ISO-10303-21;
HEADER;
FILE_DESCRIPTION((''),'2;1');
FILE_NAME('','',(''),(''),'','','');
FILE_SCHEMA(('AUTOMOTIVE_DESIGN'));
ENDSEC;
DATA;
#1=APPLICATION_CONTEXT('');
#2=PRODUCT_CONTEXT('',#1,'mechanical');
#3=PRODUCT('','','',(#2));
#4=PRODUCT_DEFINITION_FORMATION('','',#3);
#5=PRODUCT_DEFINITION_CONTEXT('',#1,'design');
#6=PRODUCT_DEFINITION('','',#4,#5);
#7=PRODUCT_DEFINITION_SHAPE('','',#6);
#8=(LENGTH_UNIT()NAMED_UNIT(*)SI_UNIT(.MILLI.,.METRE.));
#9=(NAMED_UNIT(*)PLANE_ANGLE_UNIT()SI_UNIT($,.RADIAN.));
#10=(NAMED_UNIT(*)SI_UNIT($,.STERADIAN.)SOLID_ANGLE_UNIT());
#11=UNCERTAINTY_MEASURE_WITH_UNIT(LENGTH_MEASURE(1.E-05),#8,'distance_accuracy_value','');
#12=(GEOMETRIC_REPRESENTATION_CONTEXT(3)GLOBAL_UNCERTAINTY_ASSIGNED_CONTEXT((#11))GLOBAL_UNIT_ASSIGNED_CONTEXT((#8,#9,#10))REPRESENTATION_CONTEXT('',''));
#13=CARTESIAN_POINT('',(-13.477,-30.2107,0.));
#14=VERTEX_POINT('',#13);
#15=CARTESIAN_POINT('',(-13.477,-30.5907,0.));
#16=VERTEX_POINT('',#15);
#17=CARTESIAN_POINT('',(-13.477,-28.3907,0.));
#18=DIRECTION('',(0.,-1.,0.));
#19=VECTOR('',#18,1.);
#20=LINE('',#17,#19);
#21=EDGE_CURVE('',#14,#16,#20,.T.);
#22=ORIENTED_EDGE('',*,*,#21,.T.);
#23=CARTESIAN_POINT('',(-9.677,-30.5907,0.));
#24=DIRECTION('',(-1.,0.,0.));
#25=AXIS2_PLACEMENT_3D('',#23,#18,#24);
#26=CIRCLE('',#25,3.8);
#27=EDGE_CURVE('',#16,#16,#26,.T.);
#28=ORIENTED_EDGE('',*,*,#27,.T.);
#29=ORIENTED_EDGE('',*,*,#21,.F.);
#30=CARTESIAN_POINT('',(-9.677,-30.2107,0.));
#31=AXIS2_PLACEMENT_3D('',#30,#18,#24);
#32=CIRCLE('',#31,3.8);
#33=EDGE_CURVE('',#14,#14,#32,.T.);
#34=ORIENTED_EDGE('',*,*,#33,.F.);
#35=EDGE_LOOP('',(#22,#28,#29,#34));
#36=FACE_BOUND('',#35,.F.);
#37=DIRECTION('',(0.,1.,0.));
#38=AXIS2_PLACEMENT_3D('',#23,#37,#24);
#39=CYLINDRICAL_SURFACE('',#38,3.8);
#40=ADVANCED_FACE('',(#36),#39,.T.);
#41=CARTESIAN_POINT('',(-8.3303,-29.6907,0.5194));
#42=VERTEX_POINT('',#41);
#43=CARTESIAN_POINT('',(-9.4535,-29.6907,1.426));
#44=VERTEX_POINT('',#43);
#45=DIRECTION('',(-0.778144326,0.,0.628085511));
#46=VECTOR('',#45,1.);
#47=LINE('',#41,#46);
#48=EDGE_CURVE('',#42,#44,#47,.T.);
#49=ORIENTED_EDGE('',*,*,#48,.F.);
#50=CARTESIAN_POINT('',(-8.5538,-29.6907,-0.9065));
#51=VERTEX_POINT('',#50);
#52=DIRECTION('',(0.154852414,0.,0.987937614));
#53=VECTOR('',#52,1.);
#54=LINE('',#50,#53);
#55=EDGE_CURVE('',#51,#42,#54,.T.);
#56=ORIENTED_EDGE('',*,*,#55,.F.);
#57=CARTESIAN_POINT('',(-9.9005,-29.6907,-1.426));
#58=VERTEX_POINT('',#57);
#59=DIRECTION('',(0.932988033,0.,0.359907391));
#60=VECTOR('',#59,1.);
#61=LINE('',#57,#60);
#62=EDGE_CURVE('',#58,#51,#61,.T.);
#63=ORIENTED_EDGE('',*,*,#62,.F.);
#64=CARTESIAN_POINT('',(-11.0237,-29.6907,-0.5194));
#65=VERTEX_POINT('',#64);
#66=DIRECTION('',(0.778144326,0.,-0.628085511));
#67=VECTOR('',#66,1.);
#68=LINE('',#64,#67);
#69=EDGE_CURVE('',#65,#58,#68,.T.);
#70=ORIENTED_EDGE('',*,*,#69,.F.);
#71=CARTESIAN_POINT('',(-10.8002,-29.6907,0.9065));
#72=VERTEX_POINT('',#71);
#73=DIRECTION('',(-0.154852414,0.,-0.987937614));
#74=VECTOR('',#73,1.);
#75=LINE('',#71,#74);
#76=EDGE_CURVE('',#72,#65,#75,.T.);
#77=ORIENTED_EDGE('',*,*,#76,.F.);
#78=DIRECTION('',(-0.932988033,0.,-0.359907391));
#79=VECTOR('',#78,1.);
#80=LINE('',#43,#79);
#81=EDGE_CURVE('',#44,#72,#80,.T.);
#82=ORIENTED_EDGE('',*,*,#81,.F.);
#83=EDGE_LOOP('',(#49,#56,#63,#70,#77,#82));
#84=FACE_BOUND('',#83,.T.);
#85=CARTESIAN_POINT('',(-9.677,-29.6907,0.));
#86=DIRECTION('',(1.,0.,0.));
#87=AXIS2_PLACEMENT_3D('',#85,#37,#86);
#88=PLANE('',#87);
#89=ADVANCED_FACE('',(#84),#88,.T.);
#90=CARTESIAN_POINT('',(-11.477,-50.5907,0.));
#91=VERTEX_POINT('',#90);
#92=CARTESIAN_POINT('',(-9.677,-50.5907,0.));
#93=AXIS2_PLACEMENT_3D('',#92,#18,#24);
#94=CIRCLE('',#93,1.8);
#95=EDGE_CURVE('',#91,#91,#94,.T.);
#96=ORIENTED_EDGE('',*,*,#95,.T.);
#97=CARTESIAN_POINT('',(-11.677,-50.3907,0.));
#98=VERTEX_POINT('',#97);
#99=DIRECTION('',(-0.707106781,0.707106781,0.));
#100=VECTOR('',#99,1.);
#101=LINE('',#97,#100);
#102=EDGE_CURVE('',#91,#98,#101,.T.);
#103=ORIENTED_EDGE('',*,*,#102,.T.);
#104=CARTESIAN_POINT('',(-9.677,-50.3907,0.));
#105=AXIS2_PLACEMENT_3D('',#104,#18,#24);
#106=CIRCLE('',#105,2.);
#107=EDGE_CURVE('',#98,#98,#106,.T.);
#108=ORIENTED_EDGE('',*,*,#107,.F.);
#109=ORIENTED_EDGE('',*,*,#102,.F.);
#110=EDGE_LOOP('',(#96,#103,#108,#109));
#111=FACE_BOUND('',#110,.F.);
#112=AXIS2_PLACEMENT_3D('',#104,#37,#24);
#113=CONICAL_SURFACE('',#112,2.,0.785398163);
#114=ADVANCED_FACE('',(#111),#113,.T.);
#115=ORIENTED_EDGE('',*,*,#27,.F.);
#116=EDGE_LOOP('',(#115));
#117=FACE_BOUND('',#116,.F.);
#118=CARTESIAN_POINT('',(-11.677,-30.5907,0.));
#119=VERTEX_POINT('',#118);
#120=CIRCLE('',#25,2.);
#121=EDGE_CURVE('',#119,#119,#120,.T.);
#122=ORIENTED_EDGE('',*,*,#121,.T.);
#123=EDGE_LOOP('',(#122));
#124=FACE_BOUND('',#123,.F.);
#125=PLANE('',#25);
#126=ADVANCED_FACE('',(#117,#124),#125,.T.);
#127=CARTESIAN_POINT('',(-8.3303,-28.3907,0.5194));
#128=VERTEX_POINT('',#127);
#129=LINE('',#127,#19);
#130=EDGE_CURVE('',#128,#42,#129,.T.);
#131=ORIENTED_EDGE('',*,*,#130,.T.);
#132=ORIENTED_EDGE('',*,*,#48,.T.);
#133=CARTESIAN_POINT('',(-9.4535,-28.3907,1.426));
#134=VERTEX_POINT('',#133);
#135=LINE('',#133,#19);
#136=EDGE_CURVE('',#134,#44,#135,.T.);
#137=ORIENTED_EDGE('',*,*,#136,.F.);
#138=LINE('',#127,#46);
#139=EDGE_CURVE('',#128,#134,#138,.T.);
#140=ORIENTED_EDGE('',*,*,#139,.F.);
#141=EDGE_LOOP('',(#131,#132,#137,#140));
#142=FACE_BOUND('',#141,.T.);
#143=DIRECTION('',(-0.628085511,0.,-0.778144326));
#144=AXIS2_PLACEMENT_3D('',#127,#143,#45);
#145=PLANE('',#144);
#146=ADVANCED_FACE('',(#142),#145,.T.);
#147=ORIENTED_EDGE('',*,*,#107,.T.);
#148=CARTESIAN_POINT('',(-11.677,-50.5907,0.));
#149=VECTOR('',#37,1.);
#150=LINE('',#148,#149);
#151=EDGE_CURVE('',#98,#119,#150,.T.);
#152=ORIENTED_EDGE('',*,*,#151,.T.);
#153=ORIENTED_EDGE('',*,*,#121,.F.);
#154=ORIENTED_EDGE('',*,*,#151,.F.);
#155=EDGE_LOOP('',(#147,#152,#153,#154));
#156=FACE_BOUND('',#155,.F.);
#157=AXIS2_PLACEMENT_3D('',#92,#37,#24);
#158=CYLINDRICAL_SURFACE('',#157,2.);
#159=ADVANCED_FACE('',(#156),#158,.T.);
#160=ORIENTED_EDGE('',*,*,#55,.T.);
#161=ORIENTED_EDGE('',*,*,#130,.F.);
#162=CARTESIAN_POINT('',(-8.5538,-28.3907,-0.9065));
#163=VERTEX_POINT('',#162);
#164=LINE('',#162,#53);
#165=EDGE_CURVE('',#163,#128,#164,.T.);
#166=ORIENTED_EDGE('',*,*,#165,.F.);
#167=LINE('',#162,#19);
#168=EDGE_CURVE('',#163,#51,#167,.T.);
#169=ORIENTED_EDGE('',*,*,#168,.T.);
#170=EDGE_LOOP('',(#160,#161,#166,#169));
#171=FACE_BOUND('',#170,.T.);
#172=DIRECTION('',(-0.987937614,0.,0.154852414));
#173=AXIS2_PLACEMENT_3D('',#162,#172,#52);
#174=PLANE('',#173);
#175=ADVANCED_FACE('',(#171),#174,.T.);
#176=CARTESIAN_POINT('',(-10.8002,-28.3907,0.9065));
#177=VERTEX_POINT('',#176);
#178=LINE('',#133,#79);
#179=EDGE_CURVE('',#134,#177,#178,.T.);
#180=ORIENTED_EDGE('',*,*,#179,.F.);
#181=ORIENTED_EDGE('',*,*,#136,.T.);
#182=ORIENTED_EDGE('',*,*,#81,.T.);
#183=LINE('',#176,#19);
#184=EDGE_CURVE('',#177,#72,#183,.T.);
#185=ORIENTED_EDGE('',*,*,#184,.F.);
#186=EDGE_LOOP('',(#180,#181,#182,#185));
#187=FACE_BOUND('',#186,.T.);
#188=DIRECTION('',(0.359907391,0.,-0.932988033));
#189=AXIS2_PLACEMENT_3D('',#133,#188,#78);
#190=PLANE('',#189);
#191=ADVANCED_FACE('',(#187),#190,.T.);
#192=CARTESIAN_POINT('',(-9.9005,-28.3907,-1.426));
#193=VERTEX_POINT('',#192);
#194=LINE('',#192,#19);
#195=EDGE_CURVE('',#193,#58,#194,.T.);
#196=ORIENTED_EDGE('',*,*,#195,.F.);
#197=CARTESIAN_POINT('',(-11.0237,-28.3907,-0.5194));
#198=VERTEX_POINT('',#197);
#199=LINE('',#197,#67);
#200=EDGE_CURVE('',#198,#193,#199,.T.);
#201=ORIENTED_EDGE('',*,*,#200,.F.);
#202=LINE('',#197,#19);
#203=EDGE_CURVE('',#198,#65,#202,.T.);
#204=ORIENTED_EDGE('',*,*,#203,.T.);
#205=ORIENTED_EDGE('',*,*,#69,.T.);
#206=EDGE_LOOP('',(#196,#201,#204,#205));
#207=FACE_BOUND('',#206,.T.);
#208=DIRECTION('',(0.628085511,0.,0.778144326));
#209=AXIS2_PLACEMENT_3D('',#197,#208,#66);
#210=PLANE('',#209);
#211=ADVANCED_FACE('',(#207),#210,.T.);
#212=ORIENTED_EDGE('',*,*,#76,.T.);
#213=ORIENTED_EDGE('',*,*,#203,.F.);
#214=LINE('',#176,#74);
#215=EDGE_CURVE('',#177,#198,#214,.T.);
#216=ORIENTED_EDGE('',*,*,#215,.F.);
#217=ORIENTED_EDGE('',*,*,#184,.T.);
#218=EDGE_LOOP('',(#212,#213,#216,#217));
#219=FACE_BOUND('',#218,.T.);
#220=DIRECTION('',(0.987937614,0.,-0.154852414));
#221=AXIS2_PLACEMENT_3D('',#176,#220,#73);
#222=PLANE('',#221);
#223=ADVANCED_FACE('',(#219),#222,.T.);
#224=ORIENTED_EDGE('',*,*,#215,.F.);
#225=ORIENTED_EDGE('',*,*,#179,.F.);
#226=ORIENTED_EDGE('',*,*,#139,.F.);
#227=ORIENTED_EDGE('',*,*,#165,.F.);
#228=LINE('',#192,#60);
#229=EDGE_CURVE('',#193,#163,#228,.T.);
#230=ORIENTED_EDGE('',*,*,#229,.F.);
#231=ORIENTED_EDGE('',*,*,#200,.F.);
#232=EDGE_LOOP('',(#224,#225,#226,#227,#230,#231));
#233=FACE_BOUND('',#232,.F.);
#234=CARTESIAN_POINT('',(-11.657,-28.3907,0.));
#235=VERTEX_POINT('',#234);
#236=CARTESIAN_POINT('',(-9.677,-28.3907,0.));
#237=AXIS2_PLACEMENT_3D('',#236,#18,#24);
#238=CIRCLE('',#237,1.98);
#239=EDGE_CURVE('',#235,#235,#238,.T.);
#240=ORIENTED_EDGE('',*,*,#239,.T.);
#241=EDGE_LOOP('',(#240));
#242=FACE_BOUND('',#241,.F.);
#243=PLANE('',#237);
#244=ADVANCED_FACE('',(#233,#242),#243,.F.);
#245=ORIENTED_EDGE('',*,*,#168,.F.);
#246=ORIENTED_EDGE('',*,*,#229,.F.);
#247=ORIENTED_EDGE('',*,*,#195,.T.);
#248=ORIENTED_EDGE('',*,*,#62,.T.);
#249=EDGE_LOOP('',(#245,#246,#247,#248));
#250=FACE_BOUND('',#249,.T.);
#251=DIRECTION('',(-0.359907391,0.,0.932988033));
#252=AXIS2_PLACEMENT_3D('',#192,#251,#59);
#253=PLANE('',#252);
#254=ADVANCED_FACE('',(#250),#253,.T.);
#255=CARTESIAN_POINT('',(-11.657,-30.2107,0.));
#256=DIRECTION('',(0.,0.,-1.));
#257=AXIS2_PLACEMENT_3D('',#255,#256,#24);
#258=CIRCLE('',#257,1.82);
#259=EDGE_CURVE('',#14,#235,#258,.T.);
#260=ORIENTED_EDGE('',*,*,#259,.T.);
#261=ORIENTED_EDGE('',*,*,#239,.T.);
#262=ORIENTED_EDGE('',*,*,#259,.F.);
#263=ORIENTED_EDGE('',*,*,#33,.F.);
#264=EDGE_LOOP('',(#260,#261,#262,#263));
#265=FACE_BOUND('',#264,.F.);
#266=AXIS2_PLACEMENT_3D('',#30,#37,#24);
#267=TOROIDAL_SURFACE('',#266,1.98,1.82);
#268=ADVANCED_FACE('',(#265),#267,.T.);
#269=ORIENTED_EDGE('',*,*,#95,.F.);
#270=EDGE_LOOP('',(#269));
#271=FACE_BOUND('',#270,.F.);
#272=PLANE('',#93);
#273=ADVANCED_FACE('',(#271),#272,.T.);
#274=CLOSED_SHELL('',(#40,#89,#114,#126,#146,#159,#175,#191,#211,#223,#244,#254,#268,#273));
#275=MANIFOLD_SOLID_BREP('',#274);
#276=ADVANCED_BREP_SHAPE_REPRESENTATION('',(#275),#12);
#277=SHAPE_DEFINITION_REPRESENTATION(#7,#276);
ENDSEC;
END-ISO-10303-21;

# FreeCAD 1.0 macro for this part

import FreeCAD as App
import Part
import Sketcher
Q = App.Units.Quantity


def edges_at(feature, points):
    """Names of the edges that pass closest to the given points."""
    edges = feature.Shape.Edges
    near = lambda p: min(range(len(edges)), key=lambda i: edges[i].distToShape(Part.Vertex(*p))[0])
    return sorted({f"Edge{near(p) + 1}" for p in points})

doc = App.newDocument("Part")
body = doc.addObject("PartDesign::Body", "Body")

# Sketch on XY plane
sketch1 = body.newObject("Sketcher::SketchObject", "Sketch")
sketch1.AttachmentSupport = (doc.getObject("XY_Plane"), [""])
sketch1.MapMode = "FlatFace"
sketch1.addGeometry([
    Part.LineSegment(App.Vector(-9.7, -50.6, 0), App.Vector(-9.7, -28.4, 0)),  # 0
    Part.LineSegment(App.Vector(-9.7, -28.4, 0), App.Vector(-13.5, -28.4, 0)),  # 1
    Part.LineSegment(App.Vector(-13.5, -28.4, 0), App.Vector(-13.5, -30.6, 0)),  # 2
    Part.LineSegment(App.Vector(-13.5, -30.6, 0), App.Vector(-11.7, -30.6, 0)),  # 3
    Part.LineSegment(App.Vector(-11.7, -30.6, 0), App.Vector(-11.7, -50.6, 0)),  # 4
    Part.LineSegment(App.Vector(-11.7, -50.6, 0), App.Vector(-9.7, -50.6, 0)),  # 5
], False)
sketch1.addGeometry(Part.LineSegment(App.Vector(-9.7, -28.4, 0), App.Vector(-9.7, -50.6, 0)), True)  # axis
sketch1.addConstraint([
    Sketcher.Constraint("Coincident", 0, 2, 1, 1),
    Sketcher.Constraint("Coincident", 1, 2, 2, 1),
    Sketcher.Constraint("Coincident", 2, 2, 3, 1),
    Sketcher.Constraint("Coincident", 3, 2, 4, 1),
    Sketcher.Constraint("Coincident", 4, 2, 5, 1),
    Sketcher.Constraint("Coincident", 5, 2, 0, 1),
    Sketcher.Constraint("Vertical", 0),
    Sketcher.Constraint("Horizontal", 1),
    Sketcher.Constraint("Vertical", 2),
    Sketcher.Constraint("Horizontal", 3),
    Sketcher.Constraint("Vertical", 4),
    Sketcher.Constraint("Horizontal", 5),
    Sketcher.Constraint("Vertical", 6),
    Sketcher.Constraint("Coincident", 6, 1, 0, 2),
    Sketcher.Constraint("Horizontal", 4, 2, 6, 2),
    Sketcher.Constraint("DistanceX", 5, 1, 5, 2, Q("2 mm")),
    Sketcher.Constraint("DistanceY", 4, 2, 4, 1, Q("20 mm")),
    Sketcher.Constraint("DistanceX", 1, 2, 1, 1, Q("3.8 mm")),
    Sketcher.Constraint("DistanceY", 2, 2, 2, 1, Q("2.2 mm")),
    Sketcher.Constraint("DistanceX", 0, 2, -1, 1, Q("9.677 mm")),
    Sketcher.Constraint("DistanceY", 0, 2, -1, 1, Q("28.3907 mm")),
])
revolution = body.newObject("PartDesign::Revolution", "Revolution")
revolution.Profile = sketch1
revolution.ReferenceAxis = (sketch1, ["Axis0"])
revolution.Angle = 360
doc.recompute()

chamfer = body.newObject("PartDesign::Chamfer", "Chamfer")
chamfer.Base = (revolution, edges_at(revolution, [(-7.677, -50.591, 0)]))
chamfer.Size = 0.2
doc.recompute()

fillet = body.newObject("PartDesign::Fillet", "Fillet")
fillet.Base = (chamfer, edges_at(chamfer, [(-5.877, -28.391, 0)]))
fillet.Radius = 1.82

# Sketch on XZ plane
sketch2 = body.newObject("Sketcher::SketchObject", "Sketch001")
sketch2.AttachmentSupport = (doc.getObject("XZ_Plane"), [""])
sketch2.MapMode = "FlatFace"
sketch2.AttachmentOffset = App.Placement(App.Vector(0, 0, 28.3907), App.Rotation())
sketch2.addGeometry([
    Part.LineSegment(App.Vector(-8.3303, 0.5194, 0), App.Vector(-8.5538, -0.9065, 0)),  # 0
    Part.LineSegment(App.Vector(-8.5538, -0.9065, 0), App.Vector(-9.9005, -1.426, 0)),  # 1
    Part.LineSegment(App.Vector(-9.9005, -1.426, 0), App.Vector(-11.0237, -0.5194, 0)),  # 2
    Part.LineSegment(App.Vector(-11.0237, -0.5194, 0), App.Vector(-10.8002, 0.9065, 0)),  # 3
    Part.LineSegment(App.Vector(-10.8002, 0.9065, 0), App.Vector(-9.4535, 1.426, 0)),  # 4
    Part.LineSegment(App.Vector(-9.4535, 1.426, 0), App.Vector(-8.3303, 0.5194, 0)),  # 5
], False)
sketch2.addConstraint([
    Sketcher.Constraint("Coincident", 0, 2, 1, 1),
    Sketcher.Constraint("Coincident", 1, 2, 2, 1),
    Sketcher.Constraint("Coincident", 2, 2, 3, 1),
    Sketcher.Constraint("Coincident", 3, 2, 4, 1),
    Sketcher.Constraint("Coincident", 4, 2, 5, 1),
    Sketcher.Constraint("Coincident", 5, 2, 0, 1),
    Sketcher.Constraint("DistanceX", 2, 2, 0, 2, Q("2.47 mm")),
    Sketcher.Constraint("DistanceX", 3, 2, 5, 2, Q("2.47 mm")),
    Sketcher.Constraint("DistanceY", 1, 2, -1, 1, Q("1.426 mm")),
    Sketcher.Constraint("DistanceY", -1, 1, 4, 2, Q("1.426 mm")),
    Sketcher.Constraint("DistanceY", 0, 2, 2, 2, Q("0.387 mm")),
    Sketcher.Constraint("DistanceY", 2, 2, 3, 2, Q("1.426 mm")),
    Sketcher.Constraint("DistanceX", 1, 2, 4, 2, Q("0.447 mm")),
    Sketcher.Constraint("DistanceY", 0, 2, 5, 2, Q("1.426 mm")),
    Sketcher.Constraint("Distance", 0, Q("1.4433 mm")),
    Sketcher.Constraint("Distance", 1, Q("1.4434 mm")),
    Sketcher.Constraint("Distance", 2, Q("1.4434 mm")),
    Sketcher.Constraint("DistanceX", 0, 2, -1, 1, Q("8.5538 mm")),
])
pocket1 = body.newObject("PartDesign::Pocket", "Pocket")
pocket1.Profile = sketch2
pocket1.Length = 1.3
pocket1.Reversed = True

doc.recompute()
